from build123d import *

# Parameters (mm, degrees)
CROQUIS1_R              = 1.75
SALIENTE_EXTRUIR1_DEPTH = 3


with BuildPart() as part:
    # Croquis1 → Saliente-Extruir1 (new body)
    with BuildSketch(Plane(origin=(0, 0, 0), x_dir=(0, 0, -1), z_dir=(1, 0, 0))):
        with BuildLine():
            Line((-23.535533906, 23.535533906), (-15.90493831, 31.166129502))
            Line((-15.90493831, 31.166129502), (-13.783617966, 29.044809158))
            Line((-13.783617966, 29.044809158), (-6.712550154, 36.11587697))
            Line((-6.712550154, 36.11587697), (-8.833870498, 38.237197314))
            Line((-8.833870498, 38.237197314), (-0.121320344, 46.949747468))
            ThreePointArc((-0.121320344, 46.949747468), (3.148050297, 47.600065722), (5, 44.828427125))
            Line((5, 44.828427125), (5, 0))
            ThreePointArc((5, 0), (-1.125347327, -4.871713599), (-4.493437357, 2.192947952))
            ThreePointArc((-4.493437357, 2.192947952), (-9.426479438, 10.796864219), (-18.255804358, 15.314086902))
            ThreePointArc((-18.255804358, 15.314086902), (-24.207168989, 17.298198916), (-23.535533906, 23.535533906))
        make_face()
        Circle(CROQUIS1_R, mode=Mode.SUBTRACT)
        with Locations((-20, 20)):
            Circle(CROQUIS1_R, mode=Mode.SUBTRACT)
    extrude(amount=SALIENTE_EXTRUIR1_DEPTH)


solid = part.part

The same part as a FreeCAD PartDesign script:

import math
import FreeCAD as App
import Part
import Sketcher
from FreeCAD import Vector
Q = App.Units.Quantity

doc = App.newDocument("Part")
body = doc.addObject("PartDesign::Body", "Body")

sketch1 = body.newObject("Sketcher::SketchObject", "Sketch")
sketch1.AttachmentSupport = (doc.getObject("YZ_Plane"), [""])
sketch1.MapMode = "FlatFace"
sketch1.addGeometry([
    Part.LineSegment(Vector(31.2, 15.9, 0), Vector(23.5, 23.5, 0)),
    Part.ArcOfCircle(Part.Circle(Vector(20, 20, 0), Vector(0, 0, 1), 5), math.radians(45), math.radians(200)),
    Part.ArcOfCircle(Part.Circle(Vector(-1.8, 21.4, 0), Vector(0, 0, 1), 17.4), math.radians(-77), math.radians(-11)),
    Part.ArcOfCircle(Part.Circle(Vector(0, 0, 0), Vector(0, 0, 1), 5), math.radians(64), math.radians(270)),
    Part.LineSegment(Vector(0, -5, 0), Vector(44.8, -5, 0)),
    Part.ArcOfCircle(Part.Circle(Vector(44.8, -2, 0), Vector(0, 0, 1), 3), math.radians(-90), math.radians(45)),
    Part.LineSegment(Vector(46.9, 0.1, 0), Vector(38.2, 8.8, 0)),
    Part.LineSegment(Vector(38.2, 8.8, 0), Vector(36.1, 6.7, 0)),
    Part.LineSegment(Vector(36.1, 6.7, 0), Vector(29, 13.8, 0)),
    Part.LineSegment(Vector(29, 13.8, 0), Vector(31.2, 15.9, 0)),
    Part.Circle(Vector(0, 0, 0), Vector(0, 0, 1), 1.8),
    Part.Circle(Vector(20, 20, 0), Vector(0, 0, 1), 1.8),
], False)
sketch1.addConstraint([
    Sketcher.Constraint("Tangent", 0, 2, 1, 1),
    Sketcher.Constraint("Coincident", 1, 2, 2, 2),
    Sketcher.Constraint("Coincident", 2, 1, 3, 1),
    Sketcher.Constraint("Tangent", 3, 2, 4, 1),
    Sketcher.Constraint("Tangent", 4, 2, 5, 1),
    Sketcher.Constraint("Tangent", 5, 2, 6, 1),
    Sketcher.Constraint("Coincident", 6, 2, 7, 1),
    Sketcher.Constraint("Coincident", 7, 2, 8, 1),
    Sketcher.Constraint("Coincident", 8, 2, 9, 1),
    Sketcher.Constraint("Coincident", 9, 2, 0, 1),
    Sketcher.Constraint("Horizontal", 4),
    Sketcher.Constraint("Coincident", 3, 3, -1, 1),
    Sketcher.Constraint("Coincident", 10, 3, -1, 1),
    Sketcher.Constraint("Coincident", 11, 3, 1, 3),
    Sketcher.Constraint("Equal", 1, 3),
    Sketcher.Constraint("Equal", 10, 11),
    Sketcher.Constraint("Parallel", 0, 6),
    Sketcher.Constraint("Perpendicular", 6, 7),
    Sketcher.Constraint("Perpendicular", 7, 8),
    Sketcher.Constraint("Perpendicular", 8, 9),
    Sketcher.Constraint("Equal", 7, 9),
    Sketcher.Constraint("Radius", 1, Q("5 mm")),
    Sketcher.Constraint("Radius", 5, Q("3 mm")),
    Sketcher.Constraint("Diameter", 10, Q("3.5 mm")),
    Sketcher.Constraint("Angle", 0, Q("135 deg")),
    Sketcher.Constraint("Distance", 7, Q("3 mm")),
    Sketcher.Constraint("Distance", 8, Q("10 mm")),
    Sketcher.Constraint("DistanceX", -1, 1, 1, 3, Q("20 mm")),
    Sketcher.Constraint("DistanceY", -1, 1, 1, 3, Q("20 mm")),
    Sketcher.Constraint("Radius", 2, Q("17.420284 mm")),
    Sketcher.Constraint("Distance", 0, Q("10.791292 mm")),
    Sketcher.Constraint("DistanceX", 2, 3, -1, 1, Q("1.811361 mm")),
    Sketcher.Constraint("DistanceY", -1, 1, 2, 3, Q("21.447251 mm")),
])
pad1 = body.newObject("PartDesign::Pad", "Pad")
pad1.Profile = sketch1
pad1.Length = 3

doc.recompute()
